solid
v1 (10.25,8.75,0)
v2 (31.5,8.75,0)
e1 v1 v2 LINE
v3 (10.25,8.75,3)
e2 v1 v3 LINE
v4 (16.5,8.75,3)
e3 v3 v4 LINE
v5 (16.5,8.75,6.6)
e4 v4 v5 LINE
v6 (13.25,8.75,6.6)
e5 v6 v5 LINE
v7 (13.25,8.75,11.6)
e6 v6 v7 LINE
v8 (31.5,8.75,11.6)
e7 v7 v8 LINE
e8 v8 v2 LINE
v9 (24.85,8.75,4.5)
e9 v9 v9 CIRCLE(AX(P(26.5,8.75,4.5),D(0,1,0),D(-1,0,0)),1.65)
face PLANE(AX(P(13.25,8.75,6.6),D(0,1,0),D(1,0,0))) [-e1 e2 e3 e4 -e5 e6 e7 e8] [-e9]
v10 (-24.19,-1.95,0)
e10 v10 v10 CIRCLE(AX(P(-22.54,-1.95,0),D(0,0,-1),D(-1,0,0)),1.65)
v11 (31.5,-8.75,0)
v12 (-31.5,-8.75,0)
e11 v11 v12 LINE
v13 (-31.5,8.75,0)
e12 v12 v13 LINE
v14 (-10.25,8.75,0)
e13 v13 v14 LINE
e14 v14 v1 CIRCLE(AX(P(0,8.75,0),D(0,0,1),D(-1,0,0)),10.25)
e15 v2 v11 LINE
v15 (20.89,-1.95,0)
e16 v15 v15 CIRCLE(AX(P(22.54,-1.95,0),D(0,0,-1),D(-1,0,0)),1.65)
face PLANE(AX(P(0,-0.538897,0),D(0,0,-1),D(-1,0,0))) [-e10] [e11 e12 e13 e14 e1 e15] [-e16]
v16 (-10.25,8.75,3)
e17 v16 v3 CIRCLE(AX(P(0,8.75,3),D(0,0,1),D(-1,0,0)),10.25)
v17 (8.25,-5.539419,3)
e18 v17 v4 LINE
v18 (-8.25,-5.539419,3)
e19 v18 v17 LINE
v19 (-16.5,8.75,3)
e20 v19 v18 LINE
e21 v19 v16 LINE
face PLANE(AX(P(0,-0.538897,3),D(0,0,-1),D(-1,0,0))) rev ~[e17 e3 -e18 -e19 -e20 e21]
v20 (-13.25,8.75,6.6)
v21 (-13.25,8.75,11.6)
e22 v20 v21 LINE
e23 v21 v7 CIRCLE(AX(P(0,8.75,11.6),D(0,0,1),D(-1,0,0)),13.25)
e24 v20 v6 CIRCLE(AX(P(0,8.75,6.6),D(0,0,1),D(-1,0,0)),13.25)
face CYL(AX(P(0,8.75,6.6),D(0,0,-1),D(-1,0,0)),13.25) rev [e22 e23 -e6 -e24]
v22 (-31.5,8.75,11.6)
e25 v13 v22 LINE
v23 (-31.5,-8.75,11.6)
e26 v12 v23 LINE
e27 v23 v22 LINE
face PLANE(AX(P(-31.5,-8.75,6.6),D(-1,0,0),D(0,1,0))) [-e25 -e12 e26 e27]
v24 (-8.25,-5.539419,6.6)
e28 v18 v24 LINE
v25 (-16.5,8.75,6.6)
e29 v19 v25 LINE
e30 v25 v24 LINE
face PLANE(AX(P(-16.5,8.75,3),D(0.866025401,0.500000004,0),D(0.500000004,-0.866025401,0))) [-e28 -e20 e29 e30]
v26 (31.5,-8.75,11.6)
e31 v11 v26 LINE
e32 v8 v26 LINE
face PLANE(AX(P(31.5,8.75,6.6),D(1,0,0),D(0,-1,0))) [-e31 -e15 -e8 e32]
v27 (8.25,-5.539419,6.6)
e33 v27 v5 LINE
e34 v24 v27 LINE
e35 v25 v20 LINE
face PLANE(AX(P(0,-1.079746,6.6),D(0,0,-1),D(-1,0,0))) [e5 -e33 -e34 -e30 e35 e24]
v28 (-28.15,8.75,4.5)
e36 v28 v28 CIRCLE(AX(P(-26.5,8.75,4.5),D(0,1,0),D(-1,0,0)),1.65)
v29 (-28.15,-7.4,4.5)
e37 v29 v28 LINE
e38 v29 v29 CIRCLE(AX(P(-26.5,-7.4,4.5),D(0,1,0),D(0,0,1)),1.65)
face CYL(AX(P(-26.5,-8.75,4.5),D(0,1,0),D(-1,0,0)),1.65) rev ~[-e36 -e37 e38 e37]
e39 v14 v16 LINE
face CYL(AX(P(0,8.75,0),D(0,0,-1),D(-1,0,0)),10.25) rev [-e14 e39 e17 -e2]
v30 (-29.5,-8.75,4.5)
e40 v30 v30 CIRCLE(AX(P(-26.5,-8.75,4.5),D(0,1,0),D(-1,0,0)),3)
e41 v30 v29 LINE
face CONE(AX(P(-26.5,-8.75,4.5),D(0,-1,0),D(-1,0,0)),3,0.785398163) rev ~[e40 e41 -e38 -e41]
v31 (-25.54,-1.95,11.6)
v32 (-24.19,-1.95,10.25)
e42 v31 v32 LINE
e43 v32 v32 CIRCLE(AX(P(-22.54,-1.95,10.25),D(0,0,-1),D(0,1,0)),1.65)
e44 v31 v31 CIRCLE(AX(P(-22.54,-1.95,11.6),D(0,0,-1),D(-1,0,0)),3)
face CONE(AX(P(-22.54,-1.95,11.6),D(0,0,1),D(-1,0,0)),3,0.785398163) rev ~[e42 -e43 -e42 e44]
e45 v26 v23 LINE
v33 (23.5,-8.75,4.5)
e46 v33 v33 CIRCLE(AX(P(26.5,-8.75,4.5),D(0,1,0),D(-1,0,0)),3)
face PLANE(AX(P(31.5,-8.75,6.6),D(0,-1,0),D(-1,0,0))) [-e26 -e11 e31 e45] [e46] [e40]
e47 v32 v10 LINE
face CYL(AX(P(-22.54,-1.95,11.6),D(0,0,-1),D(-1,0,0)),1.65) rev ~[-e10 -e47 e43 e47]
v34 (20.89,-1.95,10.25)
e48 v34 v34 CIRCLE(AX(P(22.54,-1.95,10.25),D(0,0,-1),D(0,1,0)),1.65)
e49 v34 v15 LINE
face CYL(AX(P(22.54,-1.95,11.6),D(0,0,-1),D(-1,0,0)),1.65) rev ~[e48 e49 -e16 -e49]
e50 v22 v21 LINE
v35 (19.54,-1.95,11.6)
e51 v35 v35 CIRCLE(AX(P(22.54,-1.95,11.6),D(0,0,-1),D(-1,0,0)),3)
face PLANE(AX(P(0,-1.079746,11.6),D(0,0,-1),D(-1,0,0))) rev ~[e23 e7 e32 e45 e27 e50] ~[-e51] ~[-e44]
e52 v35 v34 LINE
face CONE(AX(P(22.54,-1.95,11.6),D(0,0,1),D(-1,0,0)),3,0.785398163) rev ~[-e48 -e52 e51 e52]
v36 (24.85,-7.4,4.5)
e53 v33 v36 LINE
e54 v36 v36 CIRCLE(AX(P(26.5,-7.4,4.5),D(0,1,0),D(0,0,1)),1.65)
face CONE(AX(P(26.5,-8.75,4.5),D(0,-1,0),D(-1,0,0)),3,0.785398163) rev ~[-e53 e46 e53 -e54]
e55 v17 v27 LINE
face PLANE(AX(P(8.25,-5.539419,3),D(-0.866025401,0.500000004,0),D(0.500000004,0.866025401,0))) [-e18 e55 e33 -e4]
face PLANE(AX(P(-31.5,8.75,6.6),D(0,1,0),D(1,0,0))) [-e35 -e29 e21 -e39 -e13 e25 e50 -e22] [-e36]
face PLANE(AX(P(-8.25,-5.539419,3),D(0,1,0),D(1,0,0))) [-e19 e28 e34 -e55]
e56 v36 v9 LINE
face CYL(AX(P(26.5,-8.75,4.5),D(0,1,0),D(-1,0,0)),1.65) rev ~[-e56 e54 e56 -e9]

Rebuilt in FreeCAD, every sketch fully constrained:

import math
import FreeCAD as App
import Part
import Sketcher

V = App.Vector
Q = App.Units.Quantity


def add_polygon(sketch, points):
    """Adds a closed chain of lines whose ends are joined by coincident constraints."""
    first, n = sketch.GeometryCount, len(points)
    for a, b in zip(points, points[1:] + points[:1]):
        sketch.addGeometry(Part.LineSegment(App.Vector(*a, 0), App.Vector(*b, 0)), False)
    for i in range(n):
        sketch.addConstraint(Sketcher.Constraint("Coincident", first + i, 2, first + (i + 1) % n, 1))

doc = App.newDocument("Part")
params = doc.addObject("Spreadsheet::Sheet", "Params")
for row, (alias, value) in enumerate([
    ("sketch1_width", "63 mm"),
    ("sketch1_radius", "10.25 mm"),
    ("sketch1_height", "17.5 mm"),
    ("pad1_length", "3 mm"),
    ("sketch2_width", "15 mm"),
    ("sketch2_width2", "63 mm"),
    ("sketch2_width3", "16.5 mm"),
    ("sketch2_height", "17.5 mm"),
    ("pad2_length", "3.6 mm"),
    ("sketch3_width", "63 mm"),
    ("sketch3_radius", "13.25 mm"),
    ("sketch3_height", "17.5 mm"),
    ("pad3_length", "5 mm"),
    ("sketch4_diameter", "3.3 mm"),
    ("hole_diameter", "3.3 mm"),
    ("hole_depth", "25 mm"),
    ("hole_csink_diameter", "6 mm"),
    ("sketch5_diameter", "3.3 mm"),
    ("hole2_diameter", "3.3 mm"),
    ("hole2_depth", "25 mm"),
    ("hole2_csink_diameter", "6 mm"),
], start=1):
    params.set(f"A{row}", alias)
    params.set(f"B{row}", "=" + value)
    params.setAlias(f"B{row}", alias)

body = doc.addObject("PartDesign::Body", "Body")

# Sketch on XY plane
sketch1 = body.newObject("Sketcher::SketchObject", "Sketch")
sketch1.AttachmentSupport = (doc.getObject("XY_Plane"), [""])
sketch1.MapMode = "FlatFace"
sketch1.addGeometry(Part.LineSegment(V(-10.25, 8.75, 0), V(-31.5, 8.75, 0)), False)
sketch1.addGeometry(Part.LineSegment(V(-31.5, 8.75, 0), V(-31.5, -8.75, 0)), False)
sketch1.addGeometry(Part.LineSegment(V(-31.5, -8.75, 0), V(31.5, -8.75, 0)), False)
sketch1.addGeometry(Part.LineSegment(V(31.5, -8.75, 0), V(31.5, 8.75, 0)), False)
sketch1.addGeometry(Part.LineSegment(V(31.5, 8.75, 0), V(10.25, 8.75, 0)), False)
sketch1.addGeometry(Part.ArcOfCircle(Part.Circle(V(0, 8.75, 0), V(0, 0, 1), 10.25), math.radians(180), math.radians(360)), False)
sketch1.addConstraint(Sketcher.Constraint("Coincident", 0, 2, 1, 1))
sketch1.addConstraint(Sketcher.Constraint("Coincident", 1, 2, 2, 1))
sketch1.addConstraint(Sketcher.Constraint("Coincident", 2, 2, 3, 1))
sketch1.addConstraint(Sketcher.Constraint("Coincident", 3, 2, 4, 1))
sketch1.addConstraint(Sketcher.Constraint("Coincident", 4, 2, 5, 2))
sketch1.addConstraint(Sketcher.Constraint("Coincident", 5, 1, 0, 1))
sketch1.addConstraint(Sketcher.Constraint("Horizontal", 0))
sketch1.addConstraint(Sketcher.Constraint("Vertical", 1))
sketch1.addConstraint(Sketcher.Constraint("Horizontal", 2))
sketch1.addConstraint(Sketcher.Constraint("Vertical", 3))
sketch1.addConstraint(Sketcher.Constraint("Horizontal", 4))
sketch1.addConstraint(Sketcher.Constraint("Symmetric", 0, 2, 2, 2, -1, 1))
sketch1.addConstraint(Sketcher.Constraint("Symmetric", 4, 2, 5, 1, -2))
sketch1.addConstraint(Sketcher.Constraint("Horizontal", 5, 3, 0, 2))
sketch1.addConstraint(Sketcher.Constraint("DistanceX", 2, 1, 2, 2, 63.0))
sketch1.addConstraint(Sketcher.Constraint("Radius", 5, 10.25))
sketch1.addConstraint(Sketcher.Constraint("DistanceY", 1, 2, 1, 1, 17.5))
sketch1.setExpression("Constraints[14]", "Params.sketch1_width")
sketch1.setExpression("Constraints[15]", "Params.sketch1_radius")
sketch1.setExpression("Constraints[16]", "Params.sketch1_height")
pad1 = body.newObject("PartDesign::Pad", "Pad")
pad1.Profile = sketch1
pad1.setExpression("Length", "Params.pad1_length")

# Sketch on XY plane
sketch2 = body.newObject("Sketcher::SketchObject", "Sketch001")
sketch2.AttachmentSupport = (doc.getObject("XY_Plane"), [""])
sketch2.MapMode = "FlatFace"
sketch2.AttachmentOffset = App.Placement(V(0, 0, 3), App.Rotation())
add_polygon(sketch2, [(16.5, 8.75), (8.25, -5.539419), (-8.25, -5.539419), (-16.5, 8.75), (-31.5, 8.75), (-31.5, -8.75), (31.5, -8.75), (31.5, 8.75)])  # lines 0-7
sketch2.addConstraint(Sketcher.Constraint("Horizontal", 1))
sketch2.addConstraint(Sketcher.Constraint("Horizontal", 3))
sketch2.addConstraint(Sketcher.Constraint("Vertical", 4))
sketch2.addConstraint(Sketcher.Constraint("Horizontal", 5))
sketch2.addConstraint(Sketcher.Constraint("Vertical", 6))
sketch2.addConstraint(Sketcher.Constraint("Horizontal", 7))
sketch2.addConstraint(Sketcher.Constraint("Symmetric", 3, 2, 5, 2, -1, 1))
sketch2.addConstraint(Sketcher.Constraint("Symmetric", 2, 2, 7, 2, -2))
sketch2.addConstraint(Sketcher.Constraint("Equal", 0, 2))
sketch2.addConstraint(Sketcher.Constraint("DistanceX", 3, 2, 3, 1, 15.0))
sketch2.addConstraint(Sketcher.Constraint("DistanceX", 5, 1, 5, 2, 63.0))
sketch2.addConstraint(Sketcher.Constraint("Angle", 0, Q("-120 deg")))
sketch2.addConstraint(Sketcher.Constraint("DistanceX", 1, 2, 1, 1, 16.5))
sketch2.addConstraint(Sketcher.Constraint("DistanceY", 4, 2, 4, 1, 17.5))
sketch2.setExpression("Constraints[17]", "Params.sketch2_width")
sketch2.setExpression("Constraints[18]", "Params.sketch2_width2")
sketch2.setExpression("Constraints[20]", "Params.sketch2_width3")
sketch2.setExpression("Constraints[21]", "Params.sketch2_height")
pad2 = body.newObject("PartDesign::Pad", "Pad001")
pad2.Profile = sketch2
pad2.setExpression("Length", "Params.pad2_length")

# Sketch on XY plane
sketch3 = body.newObject("Sketcher::SketchObject", "Sketch002")
sketch3.AttachmentSupport = (doc.getObject("XY_Plane"), [""])
sketch3.MapMode = "FlatFace"
sketch3.AttachmentOffset = App.Placement(V(0, 0, 6.6), App.Rotation())
sketch3.addGeometry(Part.LineSegment(V(-13.25, 8.75, 0), V(-31.5, 8.75, 0)), False)
sketch3.addGeometry(Part.LineSegment(V(-31.5, 8.75, 0), V(-31.5, -8.75, 0)), False)
sketch3.addGeometry(Part.LineSegment(V(-31.5, -8.75, 0), V(31.5, -8.75, 0)), False)
sketch3.addGeometry(Part.LineSegment(V(31.5, -8.75, 0), V(31.5, 8.75, 0)), False)
sketch3.addGeometry(Part.LineSegment(V(31.5, 8.75, 0), V(13.25, 8.75, 0)), False)
sketch3.addGeometry(Part.ArcOfCircle(Part.Circle(V(0, 8.75, 0), V(0, 0, 1), 13.25), math.radians(180), math.radians(360)), False)
sketch3.addConstraint(Sketcher.Constraint("Coincident", 0, 2, 1, 1))
sketch3.addConstraint(Sketcher.Constraint("Coincident", 1, 2, 2, 1))
sketch3.addConstraint(Sketcher.Constraint("Coincident", 2, 2, 3, 1))
sketch3.addConstraint(Sketcher.Constraint("Coincident", 3, 2, 4, 1))
sketch3.addConstraint(Sketcher.Constraint("Coincident", 4, 2, 5, 2))
sketch3.addConstraint(Sketcher.Constraint("Coincident", 5, 1, 0, 1))
sketch3.addConstraint(Sketcher.Constraint("Horizontal", 0))
sketch3.addConstraint(Sketcher.Constraint("Vertical", 1))
sketch3.addConstraint(Sketcher.Constraint("Horizontal", 2))
sketch3.addConstraint(Sketcher.Constraint("Vertical", 3))
sketch3.addConstraint(Sketcher.Constraint("Horizontal", 4))
sketch3.addConstraint(Sketcher.Constraint("Symmetric", 0, 2, 2, 2, -1, 1))
sketch3.addConstraint(Sketcher.Constraint("Symmetric", 4, 2, 5, 1, -2))
sketch3.addConstraint(Sketcher.Constraint("Horizontal", 5, 3, 0, 2))
sketch3.addConstraint(Sketcher.Constraint("DistanceX", 2, 1, 2, 2, 63.0))
sketch3.addConstraint(Sketcher.Constraint("Radius", 5, 13.25))
sketch3.addConstraint(Sketcher.Constraint("DistanceY", 1, 2, 1, 1, 17.5))
sketch3.setExpression("Constraints[14]", "Params.sketch3_width")
sketch3.setExpression("Constraints[15]", "Params.sketch3_radius")
sketch3.setExpression("Constraints[16]", "Params.sketch3_height")
pad3 = body.newObject("PartDesign::Pad", "Pad002")
pad3.Profile = sketch3
pad3.setExpression("Length", "Params.pad3_length")

# Sketch on XY plane
sketch4 = body.newObject("Sketcher::SketchObject", "Sketch003")
sketch4.AttachmentSupport = (doc.getObject("XY_Plane"), [""])
sketch4.MapMode = "FlatFace"
sketch4.AttachmentOffset = App.Placement(V(0, 0, 11.6), App.Rotation())
sketch4.addGeometry(Part.Circle(V(-22.54, -1.95, 0), V(0, 0, 1), 1.65), False)
sketch4.addGeometry(Part.Circle(V(22.54, -1.95, 0), V(0, 0, 1), 1.65), False)
sketch4.addConstraint(Sketcher.Constraint("Equal", 0, 1))
sketch4.addConstraint(Sketcher.Constraint("Symmetric", 0, 3, 1, 3, -2))
sketch4.addConstraint(Sketcher.Constraint("Diameter", 0, 3.3))
sketch4.addConstraint(Sketcher.Constraint("DistanceX", 0, 3, -1, 1, 22.54))
sketch4.addConstraint(Sketcher.Constraint("DistanceY", 0, 3, -1, 1, 1.95))
sketch4.setExpression("Constraints[2]", "Params.sketch4_diameter")
doc.recompute()
hole = body.newObject("PartDesign::Hole", "Hole")
hole.Profile = sketch4
hole.ThreadType = "None"
hole.setExpression("Diameter", "Params.hole_diameter")
hole.DepthType = "Dimension"
hole.setExpression("Depth", "Params.hole_depth")
hole.DrillPoint = "Flat"
hole.HoleCutType = "Countersink"
hole.setExpression("HoleCutDiameter", "Params.hole_csink_diameter")
hole.HoleCutCountersinkAngle = 90

# Sketch on XZ plane
sketch5 = body.newObject("Sketcher::SketchObject", "Sketch004")
sketch5.AttachmentSupport = (doc.getObject("XZ_Plane"), [""])
sketch5.MapMode = "FlatFace"
sketch5.AttachmentOffset = App.Placement(V(0, 0, 8.75), App.Rotation())
sketch5.addGeometry(Part.Circle(V(26.5, 4.5, 0), V(0, 0, 1), 1.65), False)
sketch5.addGeometry(Part.Circle(V(-26.5, 4.5, 0), V(0, 0, 1), 1.65), False)
sketch5.addConstraint(Sketcher.Constraint("Equal", 0, 1))
sketch5.addConstraint(Sketcher.Constraint("Symmetric", 0, 3, 1, 3, -2))
sketch5.addConstraint(Sketcher.Constraint("Diameter", 0, 3.3))
sketch5.addConstraint(Sketcher.Constraint("DistanceX", 1, 3, 0, 3, 53.0))
sketch5.addConstraint(Sketcher.Constraint("DistanceY", -1, 1, 0, 3, 4.5))
sketch5.setExpression("Constraints[2]", "Params.sketch5_diameter")
doc.recompute()
hole2 = body.newObject("PartDesign::Hole", "Hole001")
hole2.Profile = sketch5
hole2.ThreadType = "None"
hole2.setExpression("Diameter", "Params.hole2_diameter")
hole2.DepthType = "Dimension"
hole2.setExpression("Depth", "Params.hole2_depth")
hole2.DrillPoint = "Flat"
hole2.HoleCutType = "Countersink"
hole2.setExpression("HoleCutDiameter", "Params.hole2_csink_diameter")
hole2.HoleCutCountersinkAngle = 90

doc.recompute()
